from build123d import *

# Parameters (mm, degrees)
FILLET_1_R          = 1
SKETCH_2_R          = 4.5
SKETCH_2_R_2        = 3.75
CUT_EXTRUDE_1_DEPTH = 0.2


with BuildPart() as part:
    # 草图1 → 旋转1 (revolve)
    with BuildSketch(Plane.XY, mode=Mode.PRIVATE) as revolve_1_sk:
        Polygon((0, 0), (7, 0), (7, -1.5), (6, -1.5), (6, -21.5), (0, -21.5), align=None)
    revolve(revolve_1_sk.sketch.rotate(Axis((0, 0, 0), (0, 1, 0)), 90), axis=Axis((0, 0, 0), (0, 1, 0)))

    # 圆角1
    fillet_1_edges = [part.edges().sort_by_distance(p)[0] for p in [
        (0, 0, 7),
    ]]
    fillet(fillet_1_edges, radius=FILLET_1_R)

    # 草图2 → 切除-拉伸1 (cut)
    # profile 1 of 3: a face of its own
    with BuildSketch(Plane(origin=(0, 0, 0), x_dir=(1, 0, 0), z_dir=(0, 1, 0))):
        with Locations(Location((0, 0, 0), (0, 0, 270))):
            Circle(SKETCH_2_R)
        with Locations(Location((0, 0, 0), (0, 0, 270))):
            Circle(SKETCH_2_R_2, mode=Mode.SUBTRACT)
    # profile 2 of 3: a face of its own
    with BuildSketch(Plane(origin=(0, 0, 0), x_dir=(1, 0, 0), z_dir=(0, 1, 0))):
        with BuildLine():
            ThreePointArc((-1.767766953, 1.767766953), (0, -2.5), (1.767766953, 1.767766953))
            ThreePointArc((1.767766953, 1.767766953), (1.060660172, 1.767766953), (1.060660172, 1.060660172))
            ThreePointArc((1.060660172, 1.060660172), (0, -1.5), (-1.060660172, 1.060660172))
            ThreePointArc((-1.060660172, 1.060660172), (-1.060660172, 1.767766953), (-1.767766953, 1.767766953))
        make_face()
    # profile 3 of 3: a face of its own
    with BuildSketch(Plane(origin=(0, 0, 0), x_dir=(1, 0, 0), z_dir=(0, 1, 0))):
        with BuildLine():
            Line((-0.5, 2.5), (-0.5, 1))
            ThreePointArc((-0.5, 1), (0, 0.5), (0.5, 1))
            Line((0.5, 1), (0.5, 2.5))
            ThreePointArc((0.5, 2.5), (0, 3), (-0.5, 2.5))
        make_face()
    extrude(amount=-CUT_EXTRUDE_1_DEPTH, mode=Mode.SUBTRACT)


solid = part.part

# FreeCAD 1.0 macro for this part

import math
import FreeCAD as App
import Part
import Sketcher

V = App.Vector


def edges_at(feature, points):
    """Names of the edges that pass closest to the given points."""
    edges = feature.Shape.Edges
    near = lambda p: min(range(len(edges)), key=lambda i: edges[i].distToShape(Part.Vertex(*p))[0])
    return sorted({f"Edge{near(p) + 1}" for p in points})


def add_polygon(sketch, points):
    """Adds a closed chain of lines whose ends are joined by coincident constraints."""
    first, n = sketch.GeometryCount, len(points)
    for a, b in zip(points, points[1:] + points[:1]):
        sketch.addGeometry(Part.LineSegment(App.Vector(*a, 0), App.Vector(*b, 0)), False)
    for i in range(n):
        sketch.addConstraint(Sketcher.Constraint("Coincident", first + i, 2, first + (i + 1) % n, 1))

doc = App.newDocument("Part")
body = doc.addObject("PartDesign::Body", "Body")

sketch1 = body.newObject("Sketcher::SketchObject", "Sketch")
sketch1.AttachmentSupport = (doc.getObject("XY_Plane"), [""])
sketch1.MapMode = "FlatFace"
add_polygon(sketch1, [(7, 0), (0, 0), (0, -21.5), (6, -21.5), (6, -1.5), (7, -1.5)])
sketch1.addConstraint(Sketcher.Constraint("Horizontal", 0))
sketch1.addConstraint(Sketcher.Constraint("Vertical", 1))
sketch1.addConstraint(Sketcher.Constraint("Horizontal", 2))
sketch1.addConstraint(Sketcher.Constraint("Vertical", 3))
sketch1.addConstraint(Sketcher.Constraint("Horizontal", 4))
sketch1.addConstraint(Sketcher.Constraint("Vertical", 5))
sketch1.addConstraint(Sketcher.Constraint("Coincident", 0, 2, -1, 1))
sketch1.addConstraint(Sketcher.Constraint("DistanceX", 0, 2, 0, 1, 7.0))
sketch1.addConstraint(Sketcher.Constraint("DistanceX", 2, 1, 2, 2, 6.0))
sketch1.addConstraint(Sketcher.Constraint("DistanceY", 3, 1, 3, 2, 20.0))
sketch1.addConstraint(Sketcher.Constraint("DistanceY", 1, 2, 1, 1, 21.5))
revolution = body.newObject("PartDesign::Revolution", "Revolution")
revolution.Profile = sketch1
revolution.ReferenceAxis = (sketch1, ["V_Axis"])
revolution.Angle = 360
doc.recompute()

fillet = body.newObject("PartDesign::Fillet", "Fillet")
fillet.Base = (revolution, edges_at(revolution, [(0, 0, 7)]))
fillet.Radius = 1

sketch2 = body.newObject("Sketcher::SketchObject", "Sketch001")
sketch2.AttachmentSupport = (doc.getObject("XZ_Plane"), [""])
sketch2.MapMode = "FlatFace"
sketch2.addGeometry(Part.Circle(V(0, 0, 0), V(0, 0, 1), 4.5), False)
sketch2.addGeometry(Part.Circle(V(0, 0, 0), V(0, 0, 1), 3.8), False)
sketch2.addGeometry(Part.ArcOfCircle(Part.Circle(V(0, 0, 0), V(0, 0, 1), 2.5), math.radians(-45), math.radians(225)), False)
sketch2.addGeometry(Part.ArcOfCircle(Part.Circle(V(1.4, -1.4, 0), V(0, 0, 1), 0.5), math.radians(135), math.radians(315)), False)
sketch2.addGeometry(Part.ArcOfCircle(Part.Circle(V(0, 0, 0), V(0, 0, 1), 1.5), math.radians(-45), math.radians(225)), False)
sketch2.addGeometry(Part.ArcOfCircle(Part.Circle(V(-1.4, -1.4, 0), V(0, 0, 1), 0.5), math.radians(-135), math.radians(45)), False)
sketch2.addGeometry(Part.LineSegment(V(-0.5, -2.5, 0), V(-0.5, -1, 0)), False)
sketch2.addGeometry(Part.ArcOfCircle(Part.Circle(V(0, -1, 0), V(0, 0, 1), 0.5), math.radians(0), math.radians(180)), False)
sketch2.addGeometry(Part.LineSegment(V(0.5, -1, 0), V(0.5, -2.5, 0)), False)
sketch2.addGeometry(Part.ArcOfCircle(Part.Circle(V(0, -2.5, 0), V(0, 0, 1), 0.5), math.radians(180), math.radians(360)), False)
sketch2.addConstraint(Sketcher.Constraint("Tangent", 2, 1, 3, 2))
sketch2.addConstraint(Sketcher.Constraint("Tangent", 3, 1, 4, 1))
sketch2.addConstraint(Sketcher.Constraint("Tangent", 4, 2, 5, 2))
sketch2.addConstraint(Sketcher.Constraint("Tangent", 5, 1, 2, 2))
sketch2.addConstraint(Sketcher.Constraint("Tangent", 6, 2, 7, 2))
sketch2.addConstraint(Sketcher.Constraint("Tangent", 7, 1, 8, 1))
sketch2.addConstraint(Sketcher.Constraint("Tangent", 8, 2, 9, 2))
sketch2.addConstraint(Sketcher.Constraint("Tangent", 9, 1, 6, 1))
sketch2.addConstraint(Sketcher.Constraint("Vertical", 6))
sketch2.addConstraint(Sketcher.Constraint("Vertical", 8))
sketch2.addConstraint(Sketcher.Constraint("Coincident", 0, 3, -1, 1))
sketch2.addConstraint(Sketcher.Constraint("Coincident", 1, 3, -1, 1))
sketch2.addConstraint(Sketcher.Constraint("Coincident", 2, 3, -1, 1))
sketch2.addConstraint(Sketcher.Constraint("Coincident", 4, 3, -1, 1))
sketch2.addConstraint(Sketcher.Constraint("Equal", 5, 7))
sketch2.addConstraint(Sketcher.Constraint("PointOnObject", 7, 3, -2))
sketch2.addConstraint(Sketcher.Constraint("Horizontal", 3, 3, 5, 3))
sketch2.addConstraint(Sketcher.Constraint("Diameter", 0, 9.0))
sketch2.addConstraint(Sketcher.Constraint("Diameter", 1, 7.5))
sketch2.addConstraint(Sketcher.Constraint("Radius", 2, 2.5))
sketch2.addConstraint(Sketcher.Constraint("Radius", 3, 0.5))
sketch2.addConstraint(Sketcher.Constraint("DistanceY", 6, 1, 6, 2, 1.5))
sketch2.addConstraint(Sketcher.Constraint("DistanceY", 7, 3, -1, 1, 1.0))
sketch2.addConstraint(Sketcher.Constraint("DistanceX", -1, 1, 3, 1, 1.06066))
pocket1 = body.newObject("PartDesign::Pocket", "Pocket")
pocket1.Profile = sketch2
pocket1.Length = 0.2
pocket1.Reversed = True

doc.recompute()
